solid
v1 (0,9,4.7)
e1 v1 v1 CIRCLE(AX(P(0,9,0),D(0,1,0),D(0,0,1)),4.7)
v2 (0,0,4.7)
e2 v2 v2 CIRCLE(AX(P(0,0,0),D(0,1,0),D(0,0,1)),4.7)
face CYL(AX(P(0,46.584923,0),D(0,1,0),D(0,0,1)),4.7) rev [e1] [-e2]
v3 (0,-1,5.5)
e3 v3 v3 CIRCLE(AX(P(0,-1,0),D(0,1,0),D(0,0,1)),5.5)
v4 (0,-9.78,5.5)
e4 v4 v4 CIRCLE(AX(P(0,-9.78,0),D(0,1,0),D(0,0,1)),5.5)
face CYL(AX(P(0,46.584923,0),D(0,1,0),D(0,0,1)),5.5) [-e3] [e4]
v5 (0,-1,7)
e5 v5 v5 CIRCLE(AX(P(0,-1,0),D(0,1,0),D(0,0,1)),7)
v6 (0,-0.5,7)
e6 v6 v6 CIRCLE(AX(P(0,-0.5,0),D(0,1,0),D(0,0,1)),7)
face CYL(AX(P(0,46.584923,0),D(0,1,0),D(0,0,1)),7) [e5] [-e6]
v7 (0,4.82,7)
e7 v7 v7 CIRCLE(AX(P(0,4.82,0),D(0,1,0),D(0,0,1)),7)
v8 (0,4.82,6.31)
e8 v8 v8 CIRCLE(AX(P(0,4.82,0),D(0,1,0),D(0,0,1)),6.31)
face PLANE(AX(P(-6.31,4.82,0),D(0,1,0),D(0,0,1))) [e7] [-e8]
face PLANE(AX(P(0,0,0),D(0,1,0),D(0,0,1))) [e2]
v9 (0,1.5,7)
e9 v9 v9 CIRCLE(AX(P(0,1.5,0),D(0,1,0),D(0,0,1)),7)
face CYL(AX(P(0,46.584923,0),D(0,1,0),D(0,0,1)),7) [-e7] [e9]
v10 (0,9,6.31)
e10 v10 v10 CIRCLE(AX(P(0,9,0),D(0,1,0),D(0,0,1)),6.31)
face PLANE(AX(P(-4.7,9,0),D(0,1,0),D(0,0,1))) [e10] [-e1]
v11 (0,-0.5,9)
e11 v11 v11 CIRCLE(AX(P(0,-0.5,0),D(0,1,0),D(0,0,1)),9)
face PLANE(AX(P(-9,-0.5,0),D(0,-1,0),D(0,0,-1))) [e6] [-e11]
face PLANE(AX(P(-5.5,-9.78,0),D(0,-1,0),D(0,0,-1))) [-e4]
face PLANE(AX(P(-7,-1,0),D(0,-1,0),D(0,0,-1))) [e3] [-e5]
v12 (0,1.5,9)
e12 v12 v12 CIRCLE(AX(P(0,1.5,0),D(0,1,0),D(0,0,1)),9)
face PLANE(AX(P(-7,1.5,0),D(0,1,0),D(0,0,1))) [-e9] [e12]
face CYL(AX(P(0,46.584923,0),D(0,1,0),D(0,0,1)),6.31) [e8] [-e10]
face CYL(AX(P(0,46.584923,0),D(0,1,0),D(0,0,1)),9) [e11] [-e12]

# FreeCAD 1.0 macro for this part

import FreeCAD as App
import Part
import Sketcher

V = App.Vector
Q = App.Units.Quantity

doc = App.newDocument("Part")
body = doc.addObject("PartDesign::Body", "Body")

# Sketch on XY plane
sketch1 = body.newObject("Sketcher::SketchObject", "Sketch")
sketch1.AttachmentSupport = (doc.getObject("XY_Plane"), [""])
sketch1.MapMode = "FlatFace"
sketch1.addGeometry(Part.LineSegment(V(0, 0, 0), V(-4.7, 0, 0)), False)
sketch1.addGeometry(Part.LineSegment(V(-4.7, 0, 0), V(-4.7, 9, 0)), False)
sketch1.addGeometry(Part.LineSegment(V(-4.7, 9, 0), V(-6.31, 9, 0)), False)
sketch1.addGeometry(Part.LineSegment(V(-6.31, 9, 0), V(-6.31, 4.82, 0)), False)
sketch1.addGeometry(Part.LineSegment(V(-6.31, 4.82, 0), V(-7, 4.82, 0)), False)
sketch1.addGeometry(Part.LineSegment(V(-7, 4.82, 0), V(-7, 1.5, 0)), False)
sketch1.addGeometry(Part.LineSegment(V(-7, 1.5, 0), V(-9, 1.5, 0)), False)
sketch1.addGeometry(Part.LineSegment(V(-9, 1.5, 0), V(-9, -0.5, 0)), False)
sketch1.addGeometry(Part.LineSegment(V(-9, -0.5, 0), V(-7, -0.5, 0)), False)
sketch1.addGeometry(Part.LineSegment(V(-7, -0.5, 0), V(-7, -1, 0)), False)
sketch1.addGeometry(Part.LineSegment(V(-7, -1, 0), V(-5.5, -1, 0)), False)
sketch1.addGeometry(Part.LineSegment(V(-5.5, -1, 0), V(-5.5, -9.78, 0)), False)
sketch1.addGeometry(Part.LineSegment(V(-5.5, -9.78, 0), V(0, -9.78, 0)), False)
sketch1.addGeometry(Part.LineSegment(V(0, -9.78, 0), V(0, 0, 0)), False)
sketch1.addConstraint(Sketcher.Constraint("Coincident", 0, 2, 1, 1))
sketch1.addConstraint(Sketcher.Constraint("Coincident", 1, 2, 2, 1))
sketch1.addConstraint(Sketcher.Constraint("Coincident", 2, 2, 3, 1))
sketch1.addConstraint(Sketcher.Constraint("Coincident", 3, 2, 4, 1))
sketch1.addConstraint(Sketcher.Constraint("Coincident", 4, 2, 5, 1))
sketch1.addConstraint(Sketcher.Constraint("Coincident", 5, 2, 6, 1))
sketch1.addConstraint(Sketcher.Constraint("Coincident", 6, 2, 7, 1))
sketch1.addConstraint(Sketcher.Constraint("Coincident", 7, 2, 8, 1))
sketch1.addConstraint(Sketcher.Constraint("Coincident", 8, 2, 9, 1))
sketch1.addConstraint(Sketcher.Constraint("Coincident", 9, 2, 10, 1))
sketch1.addConstraint(Sketcher.Constraint("Coincident", 10, 2, 11, 1))
sketch1.addConstraint(Sketcher.Constraint("Coincident", 11, 2, 12, 1))
sketch1.addConstraint(Sketcher.Constraint("Coincident", 12, 2, 13, 1))
sketch1.addConstraint(Sketcher.Constraint("Coincident", 13, 2, 0, 1))
sketch1.addConstraint(Sketcher.Constraint("Horizontal", 0))
sketch1.addConstraint(Sketcher.Constraint("Vertical", 1))
sketch1.addConstraint(Sketcher.Constraint("Horizontal", 2))
sketch1.addConstraint(Sketcher.Constraint("Vertical", 3))
sketch1.addConstraint(Sketcher.Constraint("Horizontal", 4))
sketch1.addConstraint(Sketcher.Constraint("Vertical", 5))
sketch1.addConstraint(Sketcher.Constraint("Horizontal", 6))
sketch1.addConstraint(Sketcher.Constraint("Vertical", 7))
sketch1.addConstraint(Sketcher.Constraint("Horizontal", 8))
sketch1.addConstraint(Sketcher.Constraint("Vertical", 9))
sketch1.addConstraint(Sketcher.Constraint("Horizontal", 10))
sketch1.addConstraint(Sketcher.Constraint("Vertical", 11))
sketch1.addConstraint(Sketcher.Constraint("Horizontal", 12))
sketch1.addConstraint(Sketcher.Constraint("Vertical", 13))
sketch1.addConstraint(Sketcher.Constraint("Coincident", 13, 2, -1, 1))
sketch1.addConstraint(Sketcher.Constraint("Vertical", 5, 2, 8, 2))
sketch1.addConstraint(Sketcher.Constraint("Equal", 8, 7))
sketch1.addConstraint(Sketcher.Constraint("DistanceX", 6, 2, 6, 1, Q("2 mm")))
sketch1.addConstraint(Sketcher.Constraint("DistanceY", 1, 1, 1, 2, Q("9 mm")))
sketch1.addConstraint(Sketcher.Constraint("DistanceX", 0, 2, 0, 1, Q("4.7 mm")))
sketch1.addConstraint(Sketcher.Constraint("DistanceX", 10, 1, 10, 2, Q("1.5 mm")))
sketch1.addConstraint(Sketcher.Constraint("DistanceX", 12, 1, 12, 2, Q("5.5 mm")))
sketch1.addConstraint(Sketcher.Constraint("DistanceY", 9, 2, 9, 1, Q("0.5 mm")))
sketch1.addConstraint(Sketcher.Constraint("DistanceY", 9, 2, -1, 1, Q("1 mm")))
sketch1.addConstraint(Sketcher.Constraint("DistanceX", 2, 2, 2, 1, Q("1.61 mm")))
sketch1.addConstraint(Sketcher.Constraint("DistanceY", 3, 2, 3, 1, Q("4.18 mm")))
sketch1.addConstraint(Sketcher.Constraint("DistanceY", 11, 2, 11, 1, Q("8.78 mm")))
revolution = body.newObject("PartDesign::Revolution", "Revolution")
revolution.Profile = sketch1
revolution.ReferenceAxis = (sketch1, ["V_Axis"])
revolution.Angle = 360

doc.recompute()
